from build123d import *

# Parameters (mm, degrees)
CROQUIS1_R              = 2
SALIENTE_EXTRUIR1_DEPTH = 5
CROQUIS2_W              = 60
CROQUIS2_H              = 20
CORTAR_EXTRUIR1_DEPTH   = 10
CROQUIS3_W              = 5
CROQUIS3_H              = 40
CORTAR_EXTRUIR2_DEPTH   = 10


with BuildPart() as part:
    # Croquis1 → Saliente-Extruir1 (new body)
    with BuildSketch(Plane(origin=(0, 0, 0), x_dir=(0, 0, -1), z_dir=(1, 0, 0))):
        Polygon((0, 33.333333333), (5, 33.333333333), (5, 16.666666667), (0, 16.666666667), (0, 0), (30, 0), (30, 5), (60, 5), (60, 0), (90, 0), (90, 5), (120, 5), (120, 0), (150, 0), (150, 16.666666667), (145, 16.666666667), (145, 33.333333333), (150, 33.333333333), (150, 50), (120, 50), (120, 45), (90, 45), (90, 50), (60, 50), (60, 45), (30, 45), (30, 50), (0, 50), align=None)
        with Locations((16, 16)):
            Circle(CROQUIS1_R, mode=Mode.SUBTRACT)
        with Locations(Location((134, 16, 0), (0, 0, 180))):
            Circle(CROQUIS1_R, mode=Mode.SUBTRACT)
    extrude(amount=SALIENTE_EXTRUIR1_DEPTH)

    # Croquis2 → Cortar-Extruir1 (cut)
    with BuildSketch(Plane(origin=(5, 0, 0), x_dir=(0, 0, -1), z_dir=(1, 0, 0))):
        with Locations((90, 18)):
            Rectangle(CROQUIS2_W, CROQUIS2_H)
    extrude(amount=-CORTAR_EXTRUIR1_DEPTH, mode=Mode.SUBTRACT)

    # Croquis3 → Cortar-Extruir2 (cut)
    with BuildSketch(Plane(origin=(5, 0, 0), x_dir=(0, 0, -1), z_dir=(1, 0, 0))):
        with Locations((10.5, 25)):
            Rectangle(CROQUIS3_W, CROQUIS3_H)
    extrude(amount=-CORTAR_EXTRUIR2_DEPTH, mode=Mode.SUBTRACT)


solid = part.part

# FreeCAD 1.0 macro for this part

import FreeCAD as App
import Part
import Sketcher
from FreeCAD import Vector
Q = App.Units.Quantity

doc = App.newDocument("Part")
body = doc.addObject("PartDesign::Body", "Body")

# Sketch on YZ plane
sketch1 = doc.addObject("Sketcher::SketchObject", "Sketch")
body.addObject(sketch1)
sketch1.AttachmentSupport = (doc.YZ_Plane, [""])
sketch1.MapMode = "FlatFace"
sketch1.addGeometry([
    Part.LineSegment(Vector(33.333333, 0, 0), Vector(33.333333, -5, 0)),  # 0
    Part.LineSegment(Vector(33.333333, -5, 0), Vector(16.666667, -5, 0)),  # 1
    Part.LineSegment(Vector(16.666667, -5, 0), Vector(16.666667, 0, 0)),  # 2
    Part.LineSegment(Vector(16.666667, 0, 0), Vector(0, 0, 0)),  # 3
    Part.LineSegment(Vector(0, 0, 0), Vector(0, -30, 0)),  # 4
    Part.LineSegment(Vector(0, -30, 0), Vector(5, -30, 0)),  # 5
    Part.LineSegment(Vector(5, -30, 0), Vector(5, -60, 0)),  # 6
    Part.LineSegment(Vector(5, -60, 0), Vector(0, -60, 0)),  # 7
    Part.LineSegment(Vector(0, -60, 0), Vector(0, -90, 0)),  # 8
    Part.LineSegment(Vector(0, -90, 0), Vector(5, -90, 0)),  # 9
    Part.LineSegment(Vector(5, -90, 0), Vector(5, -120, 0)),  # 10
    Part.LineSegment(Vector(5, -120, 0), Vector(0, -120, 0)),  # 11
    Part.LineSegment(Vector(0, -120, 0), Vector(0, -150, 0)),  # 12
    Part.LineSegment(Vector(0, -150, 0), Vector(16.666667, -150, 0)),  # 13
    Part.LineSegment(Vector(16.666667, -150, 0), Vector(16.666667, -145, 0)),  # 14
    Part.LineSegment(Vector(16.666667, -145, 0), Vector(33.333333, -145, 0)),  # 15
    Part.LineSegment(Vector(33.333333, -145, 0), Vector(33.333333, -150, 0)),  # 16
    Part.LineSegment(Vector(33.333333, -150, 0), Vector(50, -150, 0)),  # 17
    Part.LineSegment(Vector(50, -150, 0), Vector(50, -120, 0)),  # 18
    Part.LineSegment(Vector(50, -120, 0), Vector(45, -120, 0)),  # 19
    Part.LineSegment(Vector(45, -120, 0), Vector(45, -90, 0)),  # 20
    Part.LineSegment(Vector(45, -90, 0), Vector(50, -90, 0)),  # 21
    Part.LineSegment(Vector(50, -90, 0), Vector(50, -60, 0)),  # 22
    Part.LineSegment(Vector(50, -60, 0), Vector(45, -60, 0)),  # 23
    Part.LineSegment(Vector(45, -60, 0), Vector(45, -30, 0)),  # 24
    Part.LineSegment(Vector(45, -30, 0), Vector(50, -30, 0)),  # 25
    Part.LineSegment(Vector(50, -30, 0), Vector(50, 0, 0)),  # 26
    Part.LineSegment(Vector(50, 0, 0), Vector(33.333333, 0, 0)),  # 27
    Part.Circle(Vector(16, -16, 0), Vector(0, 0, 1), 2),  # 28
    Part.Circle(Vector(16, -134, 0), Vector(0, 0, 1), 2),  # 29
], False)
sketch1.addConstraint([
    Sketcher.Constraint("Coincident", 0, 2, 1, 1),
    Sketcher.Constraint("Coincident", 1, 2, 2, 1),
    Sketcher.Constraint("Coincident", 2, 2, 3, 1),
    Sketcher.Constraint("Coincident", 3, 2, 4, 1),
    Sketcher.Constraint("Coincident", 4, 2, 5, 1),
    Sketcher.Constraint("Coincident", 5, 2, 6, 1),
    Sketcher.Constraint("Coincident", 6, 2, 7, 1),
    Sketcher.Constraint("Coincident", 7, 2, 8, 1),
    Sketcher.Constraint("Coincident", 8, 2, 9, 1),
    Sketcher.Constraint("Coincident", 9, 2, 10, 1),
    Sketcher.Constraint("Coincident", 10, 2, 11, 1),
    Sketcher.Constraint("Coincident", 11, 2, 12, 1),
    Sketcher.Constraint("Coincident", 12, 2, 13, 1),
    Sketcher.Constraint("Coincident", 13, 2, 14, 1),
    Sketcher.Constraint("Coincident", 14, 2, 15, 1),
    Sketcher.Constraint("Coincident", 15, 2, 16, 1),
    Sketcher.Constraint("Coincident", 16, 2, 17, 1),
    Sketcher.Constraint("Coincident", 17, 2, 18, 1),
    Sketcher.Constraint("Coincident", 18, 2, 19, 1),
    Sketcher.Constraint("Coincident", 19, 2, 20, 1),
    Sketcher.Constraint("Coincident", 20, 2, 21, 1),
    Sketcher.Constraint("Coincident", 21, 2, 22, 1),
    Sketcher.Constraint("Coincident", 22, 2, 23, 1),
    Sketcher.Constraint("Coincident", 23, 2, 24, 1),
    Sketcher.Constraint("Coincident", 24, 2, 25, 1),
    Sketcher.Constraint("Coincident", 25, 2, 26, 1),
    Sketcher.Constraint("Coincident", 26, 2, 27, 1),
    Sketcher.Constraint("Coincident", 27, 2, 0, 1),
    Sketcher.Constraint("Vertical", 0),
    Sketcher.Constraint("Horizontal", 1),
    Sketcher.Constraint("Vertical", 2),
    Sketcher.Constraint("Horizontal", 3),
    Sketcher.Constraint("Vertical", 4),
    Sketcher.Constraint("Horizontal", 5),
    Sketcher.Constraint("Vertical", 6),
    Sketcher.Constraint("Horizontal", 7),
    Sketcher.Constraint("Vertical", 8),
    Sketcher.Constraint("Horizontal", 9),
    Sketcher.Constraint("Vertical", 10),
    Sketcher.Constraint("Horizontal", 11),
    Sketcher.Constraint("Vertical", 12),
    Sketcher.Constraint("Horizontal", 13),
    Sketcher.Constraint("Vertical", 14),
    Sketcher.Constraint("Horizontal", 15),
    Sketcher.Constraint("Vertical", 16),
    Sketcher.Constraint("Horizontal", 17),
    Sketcher.Constraint("Vertical", 18),
    Sketcher.Constraint("Horizontal", 19),
    Sketcher.Constraint("Vertical", 20),
    Sketcher.Constraint("Horizontal", 21),
    Sketcher.Constraint("Vertical", 22),
    Sketcher.Constraint("Horizontal", 23),
    Sketcher.Constraint("Vertical", 24),
    Sketcher.Constraint("Horizontal", 25),
    Sketcher.Constraint("Vertical", 26),
    Sketcher.Constraint("Horizontal", 27),
    Sketcher.Constraint("Coincident", 3, 2, -1, 1),
    Sketcher.Constraint("Equal", 28, 29),
    Sketcher.Constraint("PointOnObject", 7, 2, -2),
    Sketcher.Constraint("PointOnObject", 11, 2, -2),
    Sketcher.Constraint("PointOnObject", 26, 2, -1),
    Sketcher.Constraint("Horizontal", 13, 2, 16, 2),
    Sketcher.Constraint("Horizontal", 11, 2, 18, 2),
    Sketcher.Constraint("Horizontal", 9, 2, 20, 2),
    Sketcher.Constraint("Horizontal", 7, 2, 22, 2),
    Sketcher.Constraint("Horizontal", 5, 2, 24, 2),
    Sketcher.Constraint("Vertical", 28, 3, 29, 3),
    Sketcher.Constraint("Vertical", 6, 2, 9, 2),
    Sketcher.Constraint("Vertical", 2, 2, 13, 2),
    Sketcher.Constraint("Vertical", 0, 2, 15, 2),
    Sketcher.Constraint("Vertical", 18, 2, 21, 2),
    Sketcher.Constraint("Vertical", 20, 2, 23, 2),
    Sketcher.Constraint("Vertical", 22, 2, 25, 2),
    Sketcher.Constraint("Equal", 1, 3),
    Sketcher.Constraint("Equal", 15, 17),
    Sketcher.Constraint("Equal", 11, 19),
    Sketcher.Constraint("Equal", 25, 0),
    Sketcher.Constraint("Equal", 4, 6),
    Sketcher.Constraint("Equal", 6, 8),
    Sketcher.Constraint("Equal", 8, 10),
    Sketcher.Constraint("Equal", 10, 12),
    Sketcher.Constraint("Equal", 2, 14),
    Sketcher.Constraint("Diameter", 28, Q("4 mm")),
    Sketcher.Constraint("DistanceX", 5, 1, 5, 2, Q("5 mm")),
    Sketcher.Constraint("DistanceY", 4, 2, 4, 1, Q("30 mm")),
    Sketcher.Constraint("DistanceX", -1, 1, 28, 3, Q("16 mm")),
    Sketcher.Constraint("DistanceY", 28, 3, -1, 1, Q("16 mm")),
    Sketcher.Constraint("DistanceY", 29, 3, -1, 1, Q("134 mm")),
    Sketcher.Constraint("DistanceX", -1, 1, 17, 2, Q("50 mm")),
])
pad1 = doc.addObject("PartDesign::Pad", "Pad")
body.addObject(pad1)
pad1.Profile = sketch1
pad1.Length = 5

# Sketch on YZ plane
sketch2 = doc.addObject("Sketcher::SketchObject", "Sketch001")
body.addObject(sketch2)
sketch2.AttachmentSupport = (doc.YZ_Plane, [""])
sketch2.MapMode = "FlatFace"
sketch2.AttachmentOffset = App.Placement(Vector(0, 0, 5), App.Rotation())
sketch2.addGeometry([
    Part.LineSegment(Vector(28, -60, 0), Vector(8, -60, 0)),
    Part.LineSegment(Vector(8, -60, 0), Vector(8, -120, 0)),
    Part.LineSegment(Vector(8, -120, 0), Vector(28, -120, 0)),
    Part.LineSegment(Vector(28, -120, 0), Vector(28, -60, 0)),
], False)
sketch2.addConstraint([
    Sketcher.Constraint("Coincident", 0, 2, 1, 1),
    Sketcher.Constraint("Coincident", 1, 2, 2, 1),
    Sketcher.Constraint("Coincident", 2, 2, 3, 1),
    Sketcher.Constraint("Coincident", 3, 2, 0, 1),
    Sketcher.Constraint("Horizontal", 0),
    Sketcher.Constraint("Vertical", 1),
    Sketcher.Constraint("Horizontal", 2),
    Sketcher.Constraint("Vertical", 3),
    Sketcher.Constraint("DistanceX", 0, 2, 0, 1, Q("20 mm")),
    Sketcher.Constraint("DistanceY", 1, 2, 1, 1, Q("60 mm")),
    Sketcher.Constraint("DistanceX", -1, 1, 0, 2, Q("8 mm")),
    Sketcher.Constraint("DistanceY", 0, 2, -1, 1, Q("60 mm")),
])
pocket1 = doc.addObject("PartDesign::Pocket", "Pocket")
body.addObject(pocket1)
pocket1.Profile = sketch2
pocket1.Length = 10

# Sketch on YZ plane
sketch3 = doc.addObject("Sketcher::SketchObject", "Sketch002")
body.addObject(sketch3)
sketch3.AttachmentSupport = (doc.YZ_Plane, [""])
sketch3.MapMode = "FlatFace"
sketch3.AttachmentOffset = App.Placement(Vector(0, 0, 5), App.Rotation())
sketch3.addGeometry([
    Part.LineSegment(Vector(45, -8, 0), Vector(5, -8, 0)),
    Part.LineSegment(Vector(5, -8, 0), Vector(5, -13, 0)),
    Part.LineSegment(Vector(5, -13, 0), Vector(45, -13, 0)),
    Part.LineSegment(Vector(45, -13, 0), Vector(45, -8, 0)),
], False)
sketch3.addConstraint([
    Sketcher.Constraint("Coincident", 0, 2, 1, 1),
    Sketcher.Constraint("Coincident", 1, 2, 2, 1),
    Sketcher.Constraint("Coincident", 2, 2, 3, 1),
    Sketcher.Constraint("Coincident", 3, 2, 0, 1),
    Sketcher.Constraint("Horizontal", 0),
    Sketcher.Constraint("Vertical", 1),
    Sketcher.Constraint("Horizontal", 2),
    Sketcher.Constraint("Vertical", 3),
    Sketcher.Constraint("DistanceX", 0, 2, 0, 1, Q("40 mm")),
    Sketcher.Constraint("DistanceY", 1, 2, 1, 1, Q("5 mm")),
    Sketcher.Constraint("DistanceX", -1, 1, 0, 2, Q("5 mm")),
    Sketcher.Constraint("DistanceY", 0, 2, -1, 1, Q("8 mm")),
])
pocket2 = doc.addObject("PartDesign::Pocket", "Pocket001")
body.addObject(pocket2)
pocket2.Profile = sketch3
pocket2.Length = 10

doc.recompute()
